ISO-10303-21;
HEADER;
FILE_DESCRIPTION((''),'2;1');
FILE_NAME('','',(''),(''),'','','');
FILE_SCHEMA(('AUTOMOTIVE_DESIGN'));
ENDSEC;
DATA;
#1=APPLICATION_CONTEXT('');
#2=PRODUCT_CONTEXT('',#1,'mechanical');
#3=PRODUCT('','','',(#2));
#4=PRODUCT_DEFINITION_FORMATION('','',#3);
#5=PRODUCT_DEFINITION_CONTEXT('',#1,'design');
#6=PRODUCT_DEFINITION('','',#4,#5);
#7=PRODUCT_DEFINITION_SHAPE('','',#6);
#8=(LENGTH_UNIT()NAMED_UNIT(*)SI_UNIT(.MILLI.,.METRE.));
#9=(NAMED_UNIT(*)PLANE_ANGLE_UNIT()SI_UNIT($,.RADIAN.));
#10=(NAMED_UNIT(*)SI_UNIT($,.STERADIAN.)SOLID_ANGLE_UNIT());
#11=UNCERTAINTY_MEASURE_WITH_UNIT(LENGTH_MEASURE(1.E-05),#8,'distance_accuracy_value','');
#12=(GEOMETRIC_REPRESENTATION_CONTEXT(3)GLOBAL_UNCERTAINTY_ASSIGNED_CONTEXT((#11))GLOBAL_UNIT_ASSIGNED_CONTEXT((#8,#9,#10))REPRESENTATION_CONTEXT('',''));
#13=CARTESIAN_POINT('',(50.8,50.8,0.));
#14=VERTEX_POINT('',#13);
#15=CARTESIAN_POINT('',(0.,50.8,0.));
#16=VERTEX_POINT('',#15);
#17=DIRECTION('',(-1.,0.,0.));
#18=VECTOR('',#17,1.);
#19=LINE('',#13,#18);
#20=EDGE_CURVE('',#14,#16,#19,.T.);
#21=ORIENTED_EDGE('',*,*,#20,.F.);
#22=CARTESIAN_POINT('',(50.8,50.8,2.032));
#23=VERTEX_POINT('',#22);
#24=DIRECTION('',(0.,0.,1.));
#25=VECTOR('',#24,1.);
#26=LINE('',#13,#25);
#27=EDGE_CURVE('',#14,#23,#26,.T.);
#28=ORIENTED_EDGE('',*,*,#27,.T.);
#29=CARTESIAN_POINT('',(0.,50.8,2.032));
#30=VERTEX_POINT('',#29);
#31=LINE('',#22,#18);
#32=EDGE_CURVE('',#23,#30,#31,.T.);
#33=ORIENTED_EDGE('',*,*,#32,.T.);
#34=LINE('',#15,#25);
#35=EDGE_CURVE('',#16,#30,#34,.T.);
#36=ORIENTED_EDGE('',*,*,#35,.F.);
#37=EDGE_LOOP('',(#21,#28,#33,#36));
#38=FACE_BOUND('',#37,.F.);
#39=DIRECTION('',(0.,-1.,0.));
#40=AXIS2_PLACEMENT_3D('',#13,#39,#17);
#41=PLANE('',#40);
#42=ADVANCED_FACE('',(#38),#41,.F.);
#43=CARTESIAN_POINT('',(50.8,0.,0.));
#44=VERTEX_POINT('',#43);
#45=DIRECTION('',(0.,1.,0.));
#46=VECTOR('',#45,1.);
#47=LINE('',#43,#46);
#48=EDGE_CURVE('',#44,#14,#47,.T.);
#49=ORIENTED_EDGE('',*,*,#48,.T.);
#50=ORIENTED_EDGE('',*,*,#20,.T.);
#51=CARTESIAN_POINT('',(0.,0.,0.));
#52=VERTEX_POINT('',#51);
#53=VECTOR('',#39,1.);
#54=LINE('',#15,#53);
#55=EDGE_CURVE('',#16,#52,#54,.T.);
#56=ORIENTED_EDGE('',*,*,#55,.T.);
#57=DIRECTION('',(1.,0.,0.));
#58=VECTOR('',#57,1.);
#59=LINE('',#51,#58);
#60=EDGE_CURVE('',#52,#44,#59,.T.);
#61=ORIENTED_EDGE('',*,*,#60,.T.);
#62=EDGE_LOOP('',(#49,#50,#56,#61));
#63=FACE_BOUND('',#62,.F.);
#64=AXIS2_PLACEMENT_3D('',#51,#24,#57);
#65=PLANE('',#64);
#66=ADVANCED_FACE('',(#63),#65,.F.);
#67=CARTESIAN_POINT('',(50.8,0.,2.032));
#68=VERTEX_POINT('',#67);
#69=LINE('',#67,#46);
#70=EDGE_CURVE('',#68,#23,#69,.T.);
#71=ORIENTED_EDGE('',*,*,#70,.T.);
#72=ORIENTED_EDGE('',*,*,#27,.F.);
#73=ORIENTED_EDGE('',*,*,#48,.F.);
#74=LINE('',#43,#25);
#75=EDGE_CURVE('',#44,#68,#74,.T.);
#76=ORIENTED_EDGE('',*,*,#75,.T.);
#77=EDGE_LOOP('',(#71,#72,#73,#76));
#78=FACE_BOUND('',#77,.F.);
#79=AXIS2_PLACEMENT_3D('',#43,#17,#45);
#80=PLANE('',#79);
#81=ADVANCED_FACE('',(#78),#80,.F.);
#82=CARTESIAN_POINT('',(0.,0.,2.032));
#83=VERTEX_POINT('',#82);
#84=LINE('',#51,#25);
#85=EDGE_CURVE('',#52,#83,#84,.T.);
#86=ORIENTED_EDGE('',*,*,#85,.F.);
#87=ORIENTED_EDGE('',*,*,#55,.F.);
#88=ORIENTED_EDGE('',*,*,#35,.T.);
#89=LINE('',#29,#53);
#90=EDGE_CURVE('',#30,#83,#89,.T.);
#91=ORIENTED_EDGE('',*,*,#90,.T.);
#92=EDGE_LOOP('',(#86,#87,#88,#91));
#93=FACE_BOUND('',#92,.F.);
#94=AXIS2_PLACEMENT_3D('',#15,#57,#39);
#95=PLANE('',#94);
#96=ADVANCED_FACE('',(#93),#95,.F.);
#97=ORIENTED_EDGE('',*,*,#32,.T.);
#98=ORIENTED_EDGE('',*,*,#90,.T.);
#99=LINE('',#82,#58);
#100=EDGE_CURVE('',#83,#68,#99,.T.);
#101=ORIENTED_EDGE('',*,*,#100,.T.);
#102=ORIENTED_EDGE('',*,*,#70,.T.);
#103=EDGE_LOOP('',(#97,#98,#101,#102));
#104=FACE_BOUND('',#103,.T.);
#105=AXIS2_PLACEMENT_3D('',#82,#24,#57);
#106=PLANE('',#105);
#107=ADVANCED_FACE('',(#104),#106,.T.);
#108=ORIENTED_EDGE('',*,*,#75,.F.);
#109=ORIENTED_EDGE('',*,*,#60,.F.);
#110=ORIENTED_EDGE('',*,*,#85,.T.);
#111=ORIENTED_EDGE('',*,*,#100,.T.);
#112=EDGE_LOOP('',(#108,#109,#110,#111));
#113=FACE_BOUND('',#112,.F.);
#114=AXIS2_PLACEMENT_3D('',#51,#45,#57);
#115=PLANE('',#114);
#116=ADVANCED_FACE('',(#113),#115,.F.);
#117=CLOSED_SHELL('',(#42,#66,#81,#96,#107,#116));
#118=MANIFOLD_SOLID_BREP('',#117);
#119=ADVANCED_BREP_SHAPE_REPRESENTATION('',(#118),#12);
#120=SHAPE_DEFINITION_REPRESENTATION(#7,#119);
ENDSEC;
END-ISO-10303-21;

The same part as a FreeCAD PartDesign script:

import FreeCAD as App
import Part
import Sketcher

V = App.Vector
Q = App.Units.Quantity

doc = App.newDocument("Part")
body = doc.addObject("PartDesign::Body", "Body")

# Sketch on XY plane
sketch1 = body.newObject("Sketcher::SketchObject", "Sketch")
sketch1.AttachmentSupport = (doc.getObject("XY_Plane"), [""])
sketch1.MapMode = "FlatFace"
sketch1.addGeometry([
    Part.LineSegment(V(0, 51, 0), V(0, 0, 0)),
    Part.LineSegment(V(0, 0, 0), V(51, 0, 0)),
    Part.LineSegment(V(51, 0, 0), V(51, 51, 0)),
    Part.LineSegment(V(51, 51, 0), V(0, 51, 0)),
], False)
sketch1.addConstraint([
    Sketcher.Constraint("Coincident", 0, 2, 1, 1),
    Sketcher.Constraint("Coincident", 1, 2, 2, 1),
    Sketcher.Constraint("Coincident", 2, 2, 3, 1),
    Sketcher.Constraint("Coincident", 3, 2, 0, 1),
    Sketcher.Constraint("Vertical", 0),
    Sketcher.Constraint("Horizontal", 1),
    Sketcher.Constraint("Vertical", 2),
    Sketcher.Constraint("Horizontal", 3),
    Sketcher.Constraint("Coincident", 0, 2, -1, 1),
    Sketcher.Constraint("Equal", 3, 0),
    Sketcher.Constraint("DistanceX", 1, 1, 1, 2, Q("2 in")),
])
pad1 = body.newObject("PartDesign::Pad", "Pad")
pad1.Profile = sketch1
pad1.Length = Q("0.08 in")

doc.recompute()
